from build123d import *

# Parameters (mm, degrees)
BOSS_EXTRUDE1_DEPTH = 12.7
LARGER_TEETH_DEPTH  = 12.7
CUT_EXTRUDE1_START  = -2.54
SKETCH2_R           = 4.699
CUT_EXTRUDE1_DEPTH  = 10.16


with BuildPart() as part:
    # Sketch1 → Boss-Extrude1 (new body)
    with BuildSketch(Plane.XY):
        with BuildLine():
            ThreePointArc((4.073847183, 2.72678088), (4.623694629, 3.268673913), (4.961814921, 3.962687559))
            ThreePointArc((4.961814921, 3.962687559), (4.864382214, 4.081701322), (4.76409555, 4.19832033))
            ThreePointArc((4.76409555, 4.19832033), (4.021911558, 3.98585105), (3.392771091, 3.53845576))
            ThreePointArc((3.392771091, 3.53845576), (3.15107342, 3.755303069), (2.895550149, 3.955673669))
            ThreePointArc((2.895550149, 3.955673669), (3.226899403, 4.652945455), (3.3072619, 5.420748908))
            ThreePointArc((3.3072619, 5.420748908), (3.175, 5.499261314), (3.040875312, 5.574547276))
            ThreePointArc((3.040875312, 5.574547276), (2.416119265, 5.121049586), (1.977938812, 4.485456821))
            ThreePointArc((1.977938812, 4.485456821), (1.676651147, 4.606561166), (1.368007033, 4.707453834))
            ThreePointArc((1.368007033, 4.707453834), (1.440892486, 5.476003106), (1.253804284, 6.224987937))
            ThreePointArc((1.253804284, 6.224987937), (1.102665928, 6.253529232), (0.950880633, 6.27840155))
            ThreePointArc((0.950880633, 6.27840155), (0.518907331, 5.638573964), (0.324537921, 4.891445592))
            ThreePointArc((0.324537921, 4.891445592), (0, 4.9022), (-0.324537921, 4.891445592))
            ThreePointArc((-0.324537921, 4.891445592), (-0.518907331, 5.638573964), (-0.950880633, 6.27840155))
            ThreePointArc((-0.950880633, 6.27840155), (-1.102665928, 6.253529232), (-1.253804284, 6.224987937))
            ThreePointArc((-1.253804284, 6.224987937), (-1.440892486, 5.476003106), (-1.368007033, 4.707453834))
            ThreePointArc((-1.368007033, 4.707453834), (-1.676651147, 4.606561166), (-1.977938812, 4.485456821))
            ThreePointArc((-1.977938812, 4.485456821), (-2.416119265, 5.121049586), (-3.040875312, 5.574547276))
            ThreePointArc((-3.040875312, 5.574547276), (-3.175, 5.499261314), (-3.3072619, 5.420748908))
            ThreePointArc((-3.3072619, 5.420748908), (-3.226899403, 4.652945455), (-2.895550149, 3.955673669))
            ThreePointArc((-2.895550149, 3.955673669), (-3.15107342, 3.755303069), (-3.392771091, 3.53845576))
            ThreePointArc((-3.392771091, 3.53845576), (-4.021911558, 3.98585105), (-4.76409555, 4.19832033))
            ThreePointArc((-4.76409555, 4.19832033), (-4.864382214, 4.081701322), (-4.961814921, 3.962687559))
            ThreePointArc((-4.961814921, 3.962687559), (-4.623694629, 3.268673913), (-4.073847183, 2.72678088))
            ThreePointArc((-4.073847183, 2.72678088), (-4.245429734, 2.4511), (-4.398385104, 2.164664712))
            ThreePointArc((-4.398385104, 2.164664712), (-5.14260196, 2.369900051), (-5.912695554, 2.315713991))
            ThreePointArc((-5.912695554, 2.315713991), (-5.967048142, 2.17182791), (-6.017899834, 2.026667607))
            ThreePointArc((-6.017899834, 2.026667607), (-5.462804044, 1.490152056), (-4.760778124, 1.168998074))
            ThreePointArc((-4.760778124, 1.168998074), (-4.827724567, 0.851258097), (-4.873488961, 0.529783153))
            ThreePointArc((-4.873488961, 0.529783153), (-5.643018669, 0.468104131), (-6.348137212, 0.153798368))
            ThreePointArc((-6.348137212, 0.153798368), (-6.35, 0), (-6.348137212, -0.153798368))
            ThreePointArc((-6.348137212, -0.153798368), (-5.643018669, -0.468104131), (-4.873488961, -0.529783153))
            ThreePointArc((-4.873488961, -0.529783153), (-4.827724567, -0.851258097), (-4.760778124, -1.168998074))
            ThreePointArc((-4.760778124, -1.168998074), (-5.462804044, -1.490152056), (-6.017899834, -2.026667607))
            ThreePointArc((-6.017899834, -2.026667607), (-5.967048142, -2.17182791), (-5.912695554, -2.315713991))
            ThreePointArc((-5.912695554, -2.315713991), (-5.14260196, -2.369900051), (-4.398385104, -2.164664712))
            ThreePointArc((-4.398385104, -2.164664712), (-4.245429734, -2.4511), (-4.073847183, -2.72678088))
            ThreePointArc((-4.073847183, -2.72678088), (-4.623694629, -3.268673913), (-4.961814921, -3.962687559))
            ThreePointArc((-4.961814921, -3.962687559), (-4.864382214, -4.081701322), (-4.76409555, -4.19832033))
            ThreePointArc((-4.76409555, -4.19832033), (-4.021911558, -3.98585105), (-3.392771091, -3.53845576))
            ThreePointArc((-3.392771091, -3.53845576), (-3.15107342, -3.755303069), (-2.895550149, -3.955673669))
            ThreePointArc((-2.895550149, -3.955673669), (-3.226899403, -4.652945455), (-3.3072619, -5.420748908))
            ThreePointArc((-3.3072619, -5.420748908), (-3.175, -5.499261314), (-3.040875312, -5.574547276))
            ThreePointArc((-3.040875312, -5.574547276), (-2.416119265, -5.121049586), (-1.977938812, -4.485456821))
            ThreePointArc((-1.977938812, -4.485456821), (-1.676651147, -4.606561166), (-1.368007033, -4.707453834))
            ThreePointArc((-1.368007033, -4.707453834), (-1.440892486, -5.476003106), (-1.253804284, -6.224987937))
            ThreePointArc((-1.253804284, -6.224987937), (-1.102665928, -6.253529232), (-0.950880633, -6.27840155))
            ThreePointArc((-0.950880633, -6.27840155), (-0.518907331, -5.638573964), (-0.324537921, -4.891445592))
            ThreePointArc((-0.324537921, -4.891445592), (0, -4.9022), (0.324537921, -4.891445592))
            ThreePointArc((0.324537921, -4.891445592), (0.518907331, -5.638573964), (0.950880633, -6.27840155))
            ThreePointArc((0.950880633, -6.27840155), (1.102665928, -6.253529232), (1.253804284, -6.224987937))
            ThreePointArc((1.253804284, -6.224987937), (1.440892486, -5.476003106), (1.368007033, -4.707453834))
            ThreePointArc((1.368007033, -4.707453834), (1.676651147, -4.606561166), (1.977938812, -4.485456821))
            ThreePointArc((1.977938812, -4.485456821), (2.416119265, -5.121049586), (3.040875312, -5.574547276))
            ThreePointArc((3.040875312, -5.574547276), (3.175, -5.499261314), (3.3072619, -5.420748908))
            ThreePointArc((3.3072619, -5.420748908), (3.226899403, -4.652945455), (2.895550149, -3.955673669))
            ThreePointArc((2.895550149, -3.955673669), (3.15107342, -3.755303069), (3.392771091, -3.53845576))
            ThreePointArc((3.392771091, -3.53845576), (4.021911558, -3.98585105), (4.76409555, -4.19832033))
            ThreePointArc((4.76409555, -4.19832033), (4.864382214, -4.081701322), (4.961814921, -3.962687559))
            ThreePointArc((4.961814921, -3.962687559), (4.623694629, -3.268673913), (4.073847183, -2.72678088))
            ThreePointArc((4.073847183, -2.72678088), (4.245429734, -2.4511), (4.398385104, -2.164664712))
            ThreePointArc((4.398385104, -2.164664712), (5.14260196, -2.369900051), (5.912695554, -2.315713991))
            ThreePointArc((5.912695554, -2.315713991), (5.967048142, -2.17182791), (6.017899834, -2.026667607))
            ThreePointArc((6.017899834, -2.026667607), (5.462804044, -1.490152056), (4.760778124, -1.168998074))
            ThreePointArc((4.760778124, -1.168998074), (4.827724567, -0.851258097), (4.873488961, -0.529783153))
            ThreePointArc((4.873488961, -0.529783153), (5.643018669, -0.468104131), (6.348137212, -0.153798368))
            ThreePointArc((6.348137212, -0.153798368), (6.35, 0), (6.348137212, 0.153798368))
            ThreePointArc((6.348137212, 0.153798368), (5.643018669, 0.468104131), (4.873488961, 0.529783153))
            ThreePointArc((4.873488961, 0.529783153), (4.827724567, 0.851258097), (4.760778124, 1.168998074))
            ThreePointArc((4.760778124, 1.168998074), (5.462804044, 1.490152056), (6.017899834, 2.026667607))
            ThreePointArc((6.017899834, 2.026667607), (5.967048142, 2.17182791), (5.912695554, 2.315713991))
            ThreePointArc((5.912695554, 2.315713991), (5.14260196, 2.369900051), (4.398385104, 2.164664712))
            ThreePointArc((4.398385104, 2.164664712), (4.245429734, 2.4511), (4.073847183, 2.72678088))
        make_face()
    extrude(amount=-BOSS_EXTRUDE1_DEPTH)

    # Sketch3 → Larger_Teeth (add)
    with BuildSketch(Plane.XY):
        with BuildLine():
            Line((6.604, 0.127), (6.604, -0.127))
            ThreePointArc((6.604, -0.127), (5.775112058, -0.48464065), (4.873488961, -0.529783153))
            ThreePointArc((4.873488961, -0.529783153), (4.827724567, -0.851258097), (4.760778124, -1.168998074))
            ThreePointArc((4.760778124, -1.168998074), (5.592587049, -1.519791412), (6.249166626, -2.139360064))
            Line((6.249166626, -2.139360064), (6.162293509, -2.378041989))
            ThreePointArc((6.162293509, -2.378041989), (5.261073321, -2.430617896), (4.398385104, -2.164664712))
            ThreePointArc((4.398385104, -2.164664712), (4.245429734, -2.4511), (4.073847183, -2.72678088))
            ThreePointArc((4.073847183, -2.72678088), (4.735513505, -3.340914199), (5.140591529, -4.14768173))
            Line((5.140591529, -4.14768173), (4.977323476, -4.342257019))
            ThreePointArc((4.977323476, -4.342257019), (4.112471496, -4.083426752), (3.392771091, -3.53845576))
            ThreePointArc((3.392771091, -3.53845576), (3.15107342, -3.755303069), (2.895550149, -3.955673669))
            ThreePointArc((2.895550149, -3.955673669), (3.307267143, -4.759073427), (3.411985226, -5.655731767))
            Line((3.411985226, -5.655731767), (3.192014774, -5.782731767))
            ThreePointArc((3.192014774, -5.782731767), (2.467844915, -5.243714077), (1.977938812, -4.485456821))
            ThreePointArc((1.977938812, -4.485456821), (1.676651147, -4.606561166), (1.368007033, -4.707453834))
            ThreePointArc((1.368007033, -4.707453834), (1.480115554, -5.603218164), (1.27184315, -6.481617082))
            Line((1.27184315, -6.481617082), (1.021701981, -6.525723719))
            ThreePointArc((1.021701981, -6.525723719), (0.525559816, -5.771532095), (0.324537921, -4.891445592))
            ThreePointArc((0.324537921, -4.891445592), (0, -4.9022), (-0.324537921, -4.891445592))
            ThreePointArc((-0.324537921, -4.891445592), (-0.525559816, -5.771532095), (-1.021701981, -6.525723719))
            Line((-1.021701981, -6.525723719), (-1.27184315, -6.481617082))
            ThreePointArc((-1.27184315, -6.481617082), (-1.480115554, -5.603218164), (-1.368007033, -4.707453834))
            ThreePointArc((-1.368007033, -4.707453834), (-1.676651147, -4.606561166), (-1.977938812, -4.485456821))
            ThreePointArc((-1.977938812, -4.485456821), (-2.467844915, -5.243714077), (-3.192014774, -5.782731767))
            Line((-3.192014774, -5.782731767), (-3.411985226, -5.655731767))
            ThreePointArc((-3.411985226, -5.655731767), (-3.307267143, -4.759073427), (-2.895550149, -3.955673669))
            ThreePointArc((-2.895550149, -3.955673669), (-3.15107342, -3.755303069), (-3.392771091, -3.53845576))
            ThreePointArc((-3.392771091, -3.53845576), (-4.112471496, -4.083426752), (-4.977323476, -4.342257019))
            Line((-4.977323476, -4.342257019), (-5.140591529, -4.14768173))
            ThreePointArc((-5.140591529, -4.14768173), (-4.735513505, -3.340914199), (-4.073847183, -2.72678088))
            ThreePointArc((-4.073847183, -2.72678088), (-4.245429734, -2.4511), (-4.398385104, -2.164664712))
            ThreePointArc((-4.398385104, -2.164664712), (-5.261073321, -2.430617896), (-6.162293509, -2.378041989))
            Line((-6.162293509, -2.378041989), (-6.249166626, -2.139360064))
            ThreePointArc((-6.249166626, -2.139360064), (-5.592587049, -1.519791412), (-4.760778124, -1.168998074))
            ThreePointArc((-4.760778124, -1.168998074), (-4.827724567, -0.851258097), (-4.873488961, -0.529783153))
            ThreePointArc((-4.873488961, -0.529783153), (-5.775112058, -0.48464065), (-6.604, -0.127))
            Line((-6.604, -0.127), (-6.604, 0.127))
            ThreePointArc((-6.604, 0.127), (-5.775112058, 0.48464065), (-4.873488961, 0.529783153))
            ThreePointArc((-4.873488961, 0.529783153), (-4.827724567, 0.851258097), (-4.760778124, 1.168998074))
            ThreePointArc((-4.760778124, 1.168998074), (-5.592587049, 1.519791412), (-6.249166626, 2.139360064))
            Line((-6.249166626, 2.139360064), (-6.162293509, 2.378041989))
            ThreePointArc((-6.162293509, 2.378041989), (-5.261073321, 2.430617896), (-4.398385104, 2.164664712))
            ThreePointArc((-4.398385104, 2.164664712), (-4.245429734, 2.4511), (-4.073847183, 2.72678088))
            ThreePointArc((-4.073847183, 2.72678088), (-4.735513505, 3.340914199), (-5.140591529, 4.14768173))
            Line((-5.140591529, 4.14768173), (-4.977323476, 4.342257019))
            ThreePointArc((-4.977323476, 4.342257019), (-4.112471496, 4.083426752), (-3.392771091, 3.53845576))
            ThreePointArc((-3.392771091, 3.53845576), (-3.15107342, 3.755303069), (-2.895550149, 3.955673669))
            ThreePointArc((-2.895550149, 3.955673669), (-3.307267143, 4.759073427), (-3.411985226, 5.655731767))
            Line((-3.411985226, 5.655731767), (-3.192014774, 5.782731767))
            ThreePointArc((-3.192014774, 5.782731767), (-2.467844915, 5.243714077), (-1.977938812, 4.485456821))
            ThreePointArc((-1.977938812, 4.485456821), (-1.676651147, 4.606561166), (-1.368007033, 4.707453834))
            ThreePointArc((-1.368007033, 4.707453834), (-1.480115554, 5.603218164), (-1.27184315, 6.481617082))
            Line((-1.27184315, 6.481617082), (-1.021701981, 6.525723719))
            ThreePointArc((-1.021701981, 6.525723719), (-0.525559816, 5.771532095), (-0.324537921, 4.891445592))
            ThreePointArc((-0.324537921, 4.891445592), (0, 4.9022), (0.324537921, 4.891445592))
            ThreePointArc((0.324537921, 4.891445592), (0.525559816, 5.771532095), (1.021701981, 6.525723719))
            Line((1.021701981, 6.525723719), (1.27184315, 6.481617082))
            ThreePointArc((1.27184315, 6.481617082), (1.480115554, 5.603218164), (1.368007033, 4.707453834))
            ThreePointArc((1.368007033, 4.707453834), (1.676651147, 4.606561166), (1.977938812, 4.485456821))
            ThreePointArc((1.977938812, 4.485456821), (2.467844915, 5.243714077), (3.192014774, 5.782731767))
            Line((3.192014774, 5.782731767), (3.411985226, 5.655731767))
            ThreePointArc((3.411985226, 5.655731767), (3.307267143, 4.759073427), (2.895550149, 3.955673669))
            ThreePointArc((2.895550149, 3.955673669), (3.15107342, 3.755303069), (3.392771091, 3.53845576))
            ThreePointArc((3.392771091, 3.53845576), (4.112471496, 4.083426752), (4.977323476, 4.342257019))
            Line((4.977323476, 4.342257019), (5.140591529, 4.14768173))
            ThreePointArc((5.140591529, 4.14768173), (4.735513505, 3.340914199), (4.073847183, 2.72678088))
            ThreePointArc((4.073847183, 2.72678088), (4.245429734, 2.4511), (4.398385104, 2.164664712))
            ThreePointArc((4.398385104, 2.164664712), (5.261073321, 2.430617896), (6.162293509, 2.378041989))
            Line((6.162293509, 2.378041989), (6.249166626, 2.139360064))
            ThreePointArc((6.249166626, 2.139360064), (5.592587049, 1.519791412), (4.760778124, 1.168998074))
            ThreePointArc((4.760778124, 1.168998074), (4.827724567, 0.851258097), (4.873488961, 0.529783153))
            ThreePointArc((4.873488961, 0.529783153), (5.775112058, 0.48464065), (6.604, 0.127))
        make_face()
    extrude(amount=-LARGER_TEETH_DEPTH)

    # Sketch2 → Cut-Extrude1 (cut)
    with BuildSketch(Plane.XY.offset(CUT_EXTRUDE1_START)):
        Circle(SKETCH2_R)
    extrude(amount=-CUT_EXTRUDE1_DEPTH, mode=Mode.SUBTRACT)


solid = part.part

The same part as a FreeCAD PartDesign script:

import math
import FreeCAD as App
import Part
import Sketcher

V = App.Vector
Q = App.Units.Quantity

doc = App.newDocument("Part")
body = doc.addObject("PartDesign::Body", "Body")

# Sketch on XY plane
sketch1 = body.newObject("Sketcher::SketchObject", "Sketch")
sketch1.AttachmentSupport = (doc.getObject("XY_Plane"), [""])
sketch1.MapMode = "FlatFace"
sketch1.addGeometry([
    Part.ArcOfCircle(Part.Circle(V(2.77, 4.6, 0), V(0, 0, 1), 2.29), math.radians(-55), math.radians(-16)),  # 0
    Part.ArcOfCircle(Part.Circle(V(0, 0, 0), V(0, 0, 1), 6.35), math.radians(38.61), math.radians(41.39)),  # 1
    Part.ArcOfCircle(Part.Circle(V(5.01, 1.93, 0), V(0, 0, 1), 2.29), math.radians(96), math.radians(135)),  # 2
    Part.ArcOfCircle(Part.Circle(V(0, 0, 0), V(0, 0, 1), 4.9), math.radians(46.2), math.radians(53.8)),  # 3
    Part.ArcOfCircle(Part.Circle(V(1.03, 5.27, 0), V(0, 0, 1), 2.29), math.radians(-35), math.radians(4)),  # 4
    Part.ArcOfCircle(Part.Circle(V(0, 0, 0), V(0, 0, 1), 6.35), math.radians(58.61), math.radians(61.39)),  # 5
    Part.ArcOfCircle(Part.Circle(V(4.05, 3.52, 0), V(0, 0, 1), 2.29), math.radians(116), math.radians(155)),  # 6
    Part.ArcOfCircle(Part.Circle(V(0, 0, 0), V(0, 0, 1), 4.9), math.radians(66.2), math.radians(73.8)),  # 7
    Part.ArcOfCircle(Part.Circle(V(-0.84, 5.3, 0), V(0, 0, 1), 2.29), math.radians(-15), math.radians(24)),  # 8
    Part.ArcOfCircle(Part.Circle(V(0, 0, 0), V(0, 0, 1), 6.35), math.radians(78.61), math.radians(81.39)),  # 9
    Part.ArcOfCircle(Part.Circle(V(2.6, 4.7, 0), V(0, 0, 1), 2.29), math.radians(136), math.radians(175)),  # 10
    Part.ArcOfCircle(Part.Circle(V(0, 0, 0), V(0, 0, 1), 4.9), math.radians(86.2), math.radians(93.8)),  # 11
    Part.ArcOfCircle(Part.Circle(V(-2.6, 4.7, 0), V(0, 0, 1), 2.29), math.radians(5), math.radians(44)),  # 12
    Part.ArcOfCircle(Part.Circle(V(0, 0, 0), V(0, 0, 1), 6.35), math.radians(98.61), math.radians(101.39)),  # 13
    Part.ArcOfCircle(Part.Circle(V(0.84, 5.3, 0), V(0, 0, 1), 2.29), math.radians(156), math.radians(195)),  # 14
    Part.ArcOfCircle(Part.Circle(V(0, 0, 0), V(0, 0, 1), 4.9), math.radians(106.2), math.radians(113.8)),  # 15
    Part.ArcOfCircle(Part.Circle(V(-4.05, 3.52, 0), V(0, 0, 1), 2.29), math.radians(25), math.radians(64)),  # 16
    Part.ArcOfCircle(Part.Circle(V(0, 0, 0), V(0, 0, 1), 6.35), math.radians(118.61), math.radians(121.39)),  # 17
    Part.ArcOfCircle(Part.Circle(V(-1.03, 5.27, 0), V(0, 0, 1), 2.29), math.radians(176), math.radians(215)),  # 18
    Part.ArcOfCircle(Part.Circle(V(0, 0, 0), V(0, 0, 1), 4.9), math.radians(126.2), math.radians(133.8)),  # 19
    Part.ArcOfCircle(Part.Circle(V(-5.01, 1.93, 0), V(0, 0, 1), 2.29), math.radians(45), math.radians(84)),  # 20
    Part.ArcOfCircle(Part.Circle(V(0, 0, 0), V(0, 0, 1), 6.35), math.radians(138.61), math.radians(141.39)),  # 21
    Part.ArcOfCircle(Part.Circle(V(-2.77, 4.6, 0), V(0, 0, 1), 2.29), math.radians(-164), math.radians(-125)),  # 22
    Part.ArcOfCircle(Part.Circle(V(0, 0, 0), V(0, 0, 1), 4.9), math.radians(146.2), math.radians(153.8)),  # 23
    Part.ArcOfCircle(Part.Circle(V(-5.37, 0.1, 0), V(0, 0, 1), 2.29), math.radians(65), math.radians(104)),  # 24
    Part.ArcOfCircle(Part.Circle(V(0, 0, 0), V(0, 0, 1), 6.35), math.radians(158.61), math.radians(161.39)),  # 25
    Part.ArcOfCircle(Part.Circle(V(-4.17, 3.38, 0), V(0, 0, 1), 2.29), math.radians(-144), math.radians(-105)),  # 26
    Part.ArcOfCircle(Part.Circle(V(0, 0, 0), V(0, 0, 1), 4.9), math.radians(166.2), math.radians(173.8)),  # 27
    Part.ArcOfCircle(Part.Circle(V(-5.08, -1.75, 0), V(0, 0, 1), 2.29), math.radians(85), math.radians(124)),  # 28
    Part.ArcOfCircle(Part.Circle(V(0, 0, 0), V(0, 0, 1), 6.35), math.radians(178.61), math.radians(181.39)),  # 29
    Part.ArcOfCircle(Part.Circle(V(-5.08, 1.75, 0), V(0, 0, 1), 2.29), math.radians(-124), math.radians(-85)),  # 30
    Part.ArcOfCircle(Part.Circle(V(0, 0, 0), V(0, 0, 1), 4.9), math.radians(-173.8), math.radians(-166.2)),  # 31
    Part.ArcOfCircle(Part.Circle(V(-4.17, -3.38, 0), V(0, 0, 1), 2.29), math.radians(105), math.radians(144)),  # 32
    Part.ArcOfCircle(Part.Circle(V(0, 0, 0), V(0, 0, 1), 6.35), math.radians(-161.39), math.radians(-158.61)),  # 33
    Part.ArcOfCircle(Part.Circle(V(-5.37, -0.1, 0), V(0, 0, 1), 2.29), math.radians(-104), math.radians(-65)),  # 34
    Part.ArcOfCircle(Part.Circle(V(0, 0, 0), V(0, 0, 1), 4.9), math.radians(-153.8), math.radians(-146.2)),  # 35
    Part.ArcOfCircle(Part.Circle(V(-2.77, -4.6, 0), V(0, 0, 1), 2.29), math.radians(125), math.radians(164)),  # 36
    Part.ArcOfCircle(Part.Circle(V(0, 0, 0), V(0, 0, 1), 6.35), math.radians(-141.39), math.radians(-138.61)),  # 37
    Part.ArcOfCircle(Part.Circle(V(-5.01, -1.93, 0), V(0, 0, 1), 2.29), math.radians(-84), math.radians(-45)),  # 38
    Part.ArcOfCircle(Part.Circle(V(0, 0, 0), V(0, 0, 1), 4.9), math.radians(-133.8), math.radians(-126.2)),  # 39
    Part.ArcOfCircle(Part.Circle(V(-1.03, -5.27, 0), V(0, 0, 1), 2.29), math.radians(145), math.radians(184)),  # 40
    Part.ArcOfCircle(Part.Circle(V(0, 0, 0), V(0, 0, 1), 6.35), math.radians(-121.39), math.radians(-118.61)),  # 41
    Part.ArcOfCircle(Part.Circle(V(-4.05, -3.52, 0), V(0, 0, 1), 2.29), math.radians(-64), math.radians(-25)),  # 42
    Part.ArcOfCircle(Part.Circle(V(0, 0, 0), V(0, 0, 1), 4.9), math.radians(-113.8), math.radians(-106.2)),  # 43
    Part.ArcOfCircle(Part.Circle(V(0.84, -5.3, 0), V(0, 0, 1), 2.29), math.radians(165), math.radians(204)),  # 44
    Part.ArcOfCircle(Part.Circle(V(0, 0, 0), V(0, 0, 1), 6.35), math.radians(-101.39), math.radians(-98.61)),  # 45
    Part.ArcOfCircle(Part.Circle(V(-2.6, -4.7, 0), V(0, 0, 1), 2.29), math.radians(-44), math.radians(-5)),  # 46
    Part.ArcOfCircle(Part.Circle(V(0, 0, 0), V(0, 0, 1), 4.9), math.radians(-93.8), math.radians(-86.2)),  # 47
    Part.ArcOfCircle(Part.Circle(V(2.6, -4.7, 0), V(0, 0, 1), 2.29), math.radians(-175), math.radians(-136)),  # 48
    Part.ArcOfCircle(Part.Circle(V(0, 0, 0), V(0, 0, 1), 6.35), math.radians(-81.39), math.radians(-78.61)),  # 49
    Part.ArcOfCircle(Part.Circle(V(-0.84, -5.3, 0), V(0, 0, 1), 2.29), math.radians(-24), math.radians(15)),  # 50
    Part.ArcOfCircle(Part.Circle(V(0, 0, 0), V(0, 0, 1), 4.9), math.radians(-73.8), math.radians(-66.2)),  # 51
    Part.ArcOfCircle(Part.Circle(V(4.05, -3.52, 0), V(0, 0, 1), 2.29), math.radians(-155), math.radians(-116)),  # 52
    Part.ArcOfCircle(Part.Circle(V(0, 0, 0), V(0, 0, 1), 6.35), math.radians(-61.39), math.radians(-58.61)),  # 53
    Part.ArcOfCircle(Part.Circle(V(1.03, -5.27, 0), V(0, 0, 1), 2.29), math.radians(-4), math.radians(35)),  # 54
    Part.ArcOfCircle(Part.Circle(V(0, 0, 0), V(0, 0, 1), 4.9), math.radians(-53.8), math.radians(-46.2)),  # 55
    Part.ArcOfCircle(Part.Circle(V(5.01, -1.93, 0), V(0, 0, 1), 2.29), math.radians(-135), math.radians(-96)),  # 56
    Part.ArcOfCircle(Part.Circle(V(0, 0, 0), V(0, 0, 1), 6.35), math.radians(-41.39), math.radians(-38.61)),  # 57
    Part.ArcOfCircle(Part.Circle(V(2.77, -4.6, 0), V(0, 0, 1), 2.29), math.radians(16), math.radians(55)),  # 58
    Part.ArcOfCircle(Part.Circle(V(0, 0, 0), V(0, 0, 1), 4.9), math.radians(-33.8), math.radians(-26.2)),  # 59
    Part.ArcOfCircle(Part.Circle(V(5.37, -0.1, 0), V(0, 0, 1), 2.29), math.radians(-115), math.radians(-76)),  # 60
    Part.ArcOfCircle(Part.Circle(V(0, 0, 0), V(0, 0, 1), 6.35), math.radians(-21.39), math.radians(-18.61)),  # 61
    Part.ArcOfCircle(Part.Circle(V(4.17, -3.38, 0), V(0, 0, 1), 2.29), math.radians(36), math.radians(75)),  # 62
    Part.ArcOfCircle(Part.Circle(V(0, 0, 0), V(0, 0, 1), 4.9), math.radians(-13.8), math.radians(-6.2)),  # 63
    Part.ArcOfCircle(Part.Circle(V(5.08, 1.75, 0), V(0, 0, 1), 2.29), math.radians(-95), math.radians(-56)),  # 64
    Part.ArcOfCircle(Part.Circle(V(0, 0, 0), V(0, 0, 1), 6.35), math.radians(-1.39), math.radians(1.39)),  # 65
    Part.ArcOfCircle(Part.Circle(V(5.08, -1.75, 0), V(0, 0, 1), 2.29), math.radians(56), math.radians(95)),  # 66
    Part.ArcOfCircle(Part.Circle(V(0, 0, 0), V(0, 0, 1), 4.9), math.radians(6.2), math.radians(13.8)),  # 67
    Part.ArcOfCircle(Part.Circle(V(4.17, 3.38, 0), V(0, 0, 1), 2.29), math.radians(-75), math.radians(-36)),  # 68
    Part.ArcOfCircle(Part.Circle(V(0, 0, 0), V(0, 0, 1), 6.35), math.radians(18.61), math.radians(21.39)),  # 69
    Part.ArcOfCircle(Part.Circle(V(5.37, 0.1, 0), V(0, 0, 1), 2.29), math.radians(76), math.radians(115)),  # 70
    Part.ArcOfCircle(Part.Circle(V(0, 0, 0), V(0, 0, 1), 4.9), math.radians(26.2), math.radians(33.8)),  # 71
], False)
sketch1.addConstraint([
    Sketcher.Constraint("Coincident", 0, 2, 1, 1),
    Sketcher.Constraint("Coincident", 1, 2, 2, 1),
    Sketcher.Constraint("Coincident", 2, 2, 3, 1),
    Sketcher.Constraint("Coincident", 3, 2, 4, 1),
    Sketcher.Constraint("Coincident", 4, 2, 5, 1),
    Sketcher.Constraint("Coincident", 5, 2, 6, 1),
    Sketcher.Constraint("Coincident", 6, 2, 7, 1),
    Sketcher.Constraint("Coincident", 7, 2, 8, 1),
    Sketcher.Constraint("Coincident", 8, 2, 9, 1),
    Sketcher.Constraint("Coincident", 9, 2, 10, 1),
    Sketcher.Constraint("Coincident", 10, 2, 11, 1),
    Sketcher.Constraint("Coincident", 11, 2, 12, 1),
    Sketcher.Constraint("Coincident", 12, 2, 13, 1),
    Sketcher.Constraint("Coincident", 13, 2, 14, 1),
    Sketcher.Constraint("Coincident", 14, 2, 15, 1),
    Sketcher.Constraint("Coincident", 15, 2, 16, 1),
    Sketcher.Constraint("Coincident", 16, 2, 17, 1),
    Sketcher.Constraint("Coincident", 17, 2, 18, 1),
    Sketcher.Constraint("Coincident", 18, 2, 19, 1),
    Sketcher.Constraint("Coincident", 19, 2, 20, 1),
    Sketcher.Constraint("Coincident", 20, 2, 21, 1),
    Sketcher.Constraint("Coincident", 21, 2, 22, 1),
    Sketcher.Constraint("Coincident", 22, 2, 23, 1),
    Sketcher.Constraint("Coincident", 23, 2, 24, 1),
    Sketcher.Constraint("Coincident", 24, 2, 25, 1),
    Sketcher.Constraint("Coincident", 25, 2, 26, 1),
    Sketcher.Constraint("Coincident", 26, 2, 27, 1),
    Sketcher.Constraint("Coincident", 27, 2, 28, 1),
    Sketcher.Constraint("Coincident", 28, 2, 29, 1),
    Sketcher.Constraint("Coincident", 29, 2, 30, 1),
    Sketcher.Constraint("Coincident", 30, 2, 31, 1),
    Sketcher.Constraint("Coincident", 31, 2, 32, 1),
    Sketcher.Constraint("Coincident", 32, 2, 33, 1),
    Sketcher.Constraint("Coincident", 33, 2, 34, 1),
    Sketcher.Constraint("Coincident", 34, 2, 35, 1),
    Sketcher.Constraint("Coincident", 35, 2, 36, 1),
    Sketcher.Constraint("Coincident", 36, 2, 37, 1),
    Sketcher.Constraint("Coincident", 37, 2, 38, 1),
    Sketcher.Constraint("Coincident", 38, 2, 39, 1),
    Sketcher.Constraint("Coincident", 39, 2, 40, 1),
    Sketcher.Constraint("Coincident", 40, 2, 41, 1),
    Sketcher.Constraint("Coincident", 41, 2, 42, 1),
    Sketcher.Constraint("Coincident", 42, 2, 43, 1),
    Sketcher.Constraint("Coincident", 43, 2, 44, 1),
    Sketcher.Constraint("Coincident", 44, 2, 45, 1),
    Sketcher.Constraint("Coincident", 45, 2, 46, 1),
    Sketcher.Constraint("Coincident", 46, 2, 47, 1),
    Sketcher.Constraint("Coincident", 47, 2, 48, 1),
    Sketcher.Constraint("Coincident", 48, 2, 49, 1),
    Sketcher.Constraint("Coincident", 49, 2, 50, 1),
    Sketcher.Constraint("Coincident", 50, 2, 51, 1),
    Sketcher.Constraint("Coincident", 51, 2, 52, 1),
    Sketcher.Constraint("Coincident", 52, 2, 53, 1),
    Sketcher.Constraint("Coincident", 53, 2, 54, 1),
    Sketcher.Constraint("Coincident", 54, 2, 55, 1),
    Sketcher.Constraint("Coincident", 55, 2, 56, 1),
    Sketcher.Constraint("Coincident", 56, 2, 57, 1),
    Sketcher.Constraint("Coincident", 57, 2, 58, 1),
    Sketcher.Constraint("Coincident", 58, 2, 59, 1),
    Sketcher.Constraint("Coincident", 59, 2, 60, 1),
    Sketcher.Constraint("Coincident", 60, 2, 61, 1),
    Sketcher.Constraint("Coincident", 61, 2, 62, 1),
    Sketcher.Constraint("Coincident", 62, 2, 63, 1),
    Sketcher.Constraint("Coincident", 63, 2, 64, 1),
    Sketcher.Constraint("Coincident", 64, 2, 65, 1),
    Sketcher.Constraint("Coincident", 65, 2, 66, 1),
    Sketcher.Constraint("Coincident", 66, 2, 67, 1),
    Sketcher.Constraint("Coincident", 67, 2, 68, 1),
    Sketcher.Constraint("Coincident", 68, 2, 69, 1),
    Sketcher.Constraint("Coincident", 69, 2, 70, 1),
    Sketcher.Constraint("Coincident", 70, 2, 71, 1),
    Sketcher.Constraint("Coincident", 71, 2, 0, 1),
    Sketcher.Constraint("Coincident", 1, 3, -1, 1),
    Sketcher.Constraint("Coincident", 3, 3, -1, 1),
    Sketcher.Constraint("Coincident", 5, 3, -1, 1),
    Sketcher.Constraint("Coincident", 7, 3, -1, 1),
    Sketcher.Constraint("Coincident", 9, 3, -1, 1),
    Sketcher.Constraint("Coincident", 11, 3, -1, 1),
    Sketcher.Constraint("Coincident", 13, 3, -1, 1),
    Sketcher.Constraint("Coincident", 15, 3, -1, 1),
    Sketcher.Constraint("Coincident", 17, 3, -1, 1),
    Sketcher.Constraint("Coincident", 19, 3, -1, 1),
    Sketcher.Constraint("Coincident", 21, 3, -1, 1),
    Sketcher.Constraint("Coincident", 23, 3, -1, 1),
    Sketcher.Constraint("Coincident", 25, 3, -1, 1),
    Sketcher.Constraint("Coincident", 27, 3, -1, 1),
    Sketcher.Constraint("Coincident", 29, 3, -1, 1),
    Sketcher.Constraint("Coincident", 31, 3, -1, 1),
    Sketcher.Constraint("Coincident", 33, 3, -1, 1),
    Sketcher.Constraint("Coincident", 35, 3, -1, 1),
    Sketcher.Constraint("Coincident", 37, 3, -1, 1),
    Sketcher.Constraint("Coincident", 39, 3, -1, 1),
    Sketcher.Constraint("Coincident", 41, 3, -1, 1),
    Sketcher.Constraint("Coincident", 43, 3, -1, 1),
    Sketcher.Constraint("Coincident", 45, 3, -1, 1),
    Sketcher.Constraint("Coincident", 47, 3, -1, 1),
    Sketcher.Constraint("Coincident", 49, 3, -1, 1),
    Sketcher.Constraint("Coincident", 51, 3, -1, 1),
    Sketcher.Constraint("Coincident", 53, 3, -1, 1),
    Sketcher.Constraint("Coincident", 55, 3, -1, 1),
    Sketcher.Constraint("Coincident", 57, 3, -1, 1),
    Sketcher.Constraint("Coincident", 59, 3, -1, 1),
    Sketcher.Constraint("Coincident", 61, 3, -1, 1),
    Sketcher.Constraint("Coincident", 63, 3, -1, 1),
    Sketcher.Constraint("Coincident", 65, 3, -1, 1),
    Sketcher.Constraint("Coincident", 67, 3, -1, 1),
    Sketcher.Constraint("Coincident", 69, 3, -1, 1),
    Sketcher.Constraint("Coincident", 71, 3, -1, 1),
    Sketcher.Constraint("Equal", 0, 2),
    Sketcher.Constraint("Equal", 2, 4),
    Sketcher.Constraint("Equal", 1, 5),
    Sketcher.Constraint("Equal", 4, 6),
    Sketcher.Constraint("Equal", 3, 7),
    Sketcher.Constraint("Equal", 6, 8),
    Sketcher.Constraint("Equal", 5, 9),
    Sketcher.Constraint("Equal", 8, 10),
    Sketcher.Constraint("Equal", 7, 11),
    Sketcher.Constraint("Equal", 10, 12),
    Sketcher.Constraint("Equal", 9, 13),
    Sketcher.Constraint("Equal", 12, 14),
    Sketcher.Constraint("Equal", 11, 15),
    Sketcher.Constraint("Equal", 14, 16),
    Sketcher.Constraint("Equal", 13, 17),
    Sketcher.Constraint("Equal", 16, 18),
    Sketcher.Constraint("Equal", 15, 19),
    Sketcher.Constraint("Equal", 18, 20),
    Sketcher.Constraint("Equal", 17, 21),
    Sketcher.Constraint("Equal", 20, 22),
    Sketcher.Constraint("Equal", 19, 23),
    Sketcher.Constraint("Equal", 22, 24),
    Sketcher.Constraint("Equal", 21, 25),
    Sketcher.Constraint("Equal", 24, 26),
    Sketcher.Constraint("Equal", 23, 27),
    Sketcher.Constraint("Equal", 26, 28),
    Sketcher.Constraint("Equal", 25, 29),
    Sketcher.Constraint("Equal", 28, 30),
    Sketcher.Constraint("Equal", 27, 31),
    Sketcher.Constraint("Equal", 30, 32),
    Sketcher.Constraint("Equal", 29, 33),
    Sketcher.Constraint("Equal", 32, 34),
    Sketcher.Constraint("Equal", 31, 35),
    Sketcher.Constraint("Equal", 34, 36),
    Sketcher.Constraint("Equal", 33, 37),
    Sketcher.Constraint("Equal", 36, 38),
    Sketcher.Constraint("Equal", 35, 39),
    Sketcher.Constraint("Equal", 38, 40),
    Sketcher.Constraint("Equal", 37, 41),
    Sketcher.Constraint("Equal", 40, 42),
    Sketcher.Constraint("Equal", 39, 43),
    Sketcher.Constraint("Equal", 42, 44),
    Sketcher.Constraint("Equal", 41, 45),
    Sketcher.Constraint("Equal", 44, 46),
    Sketcher.Constraint("Equal", 43, 47),
    Sketcher.Constraint("Equal", 46, 48),
    Sketcher.Constraint("Equal", 45, 49),
    Sketcher.Constraint("Equal", 48, 50),
    Sketcher.Constraint("Equal", 47, 51),
    Sketcher.Constraint("Equal", 50, 52),
    Sketcher.Constraint("Equal", 49, 53),
    Sketcher.Constraint("Equal", 52, 54),
    Sketcher.Constraint("Equal", 51, 55),
    Sketcher.Constraint("Equal", 54, 56),
    Sketcher.Constraint("Equal", 53, 57),
    Sketcher.Constraint("Equal", 56, 58),
    Sketcher.Constraint("Equal", 55, 59),
    Sketcher.Constraint("Equal", 58, 60),
    Sketcher.Constraint("Equal", 57, 61),
    Sketcher.Constraint("Equal", 60, 62),
    Sketcher.Constraint("Equal", 59, 63),
    Sketcher.Constraint("Equal", 62, 64),
    Sketcher.Constraint("Equal", 61, 65),
    Sketcher.Constraint("Equal", 64, 66),
    Sketcher.Constraint("Equal", 63, 67),
    Sketcher.Constraint("Equal", 66, 68),
    Sketcher.Constraint("Equal", 65, 69),
    Sketcher.Constraint("Equal", 68, 70),
    Sketcher.Constraint("Equal", 67, 71),
    Sketcher.Constraint("Symmetric", 0, 3, 36, 3, -1, 1),
    Sketcher.Constraint("Symmetric", 2, 3, 38, 3, -1, 1),
    Sketcher.Constraint("Symmetric", 4, 3, 40, 3, -1, 1),
    Sketcher.Constraint("Symmetric", 6, 3, 42, 3, -1, 1),
    Sketcher.Constraint("Symmetric", 8, 3, 44, 3, -1, 1),
    Sketcher.Constraint("Symmetric", 10, 3, 46, 3, -1, 1),
    Sketcher.Constraint("Symmetric", 12, 3, 48, 3, -1, 1),
    Sketcher.Constraint("Symmetric", 14, 3, 50, 3, -1, 1),
    Sketcher.Constraint("Symmetric", 16, 3, 52, 3, -1, 1),
    Sketcher.Constraint("Symmetric", 18, 3, 54, 3, -1, 1),
    Sketcher.Constraint("Symmetric", 20, 3, 56, 3, -1, 1),
    Sketcher.Constraint("Symmetric", 22, 3, 58, 3, -1, 1),
    Sketcher.Constraint("Symmetric", 24, 3, 60, 3, -1, 1),
    Sketcher.Constraint("Symmetric", 26, 3, 62, 3, -1, 1),
    Sketcher.Constraint("Symmetric", 28, 3, 64, 3, -1, 1),
    Sketcher.Constraint("Symmetric", 30, 3, 66, 3, -1, 1),
    Sketcher.Constraint("Symmetric", 32, 3, 68, 3, -1, 1),
    Sketcher.Constraint("Symmetric", 34, 3, 70, 3, -1, 1),
    Sketcher.Constraint("Symmetric", 10, 3, 12, 3, -2),
    Sketcher.Constraint("Symmetric", 8, 3, 14, 3, -2),
    Sketcher.Constraint("Symmetric", 6, 3, 16, 3, -2),
    Sketcher.Constraint("Symmetric", 4, 3, 18, 3, -2),
    Sketcher.Constraint("Symmetric", 2, 3, 20, 3, -2),
    Sketcher.Constraint("Symmetric", 0, 3, 22, 3, -2),
    Sketcher.Constraint("Symmetric", 34, 3, 60, 3, -2),
    Sketcher.Constraint("Symmetric", 32, 3, 62, 3, -2),
    Sketcher.Constraint("Symmetric", 30, 3, 64, 3, -2),
    Sketcher.Constraint("Radius", 0, Q("0.09 in")),
    Sketcher.Constraint("Radius", 1, Q("0.25 in")),
    Sketcher.Constraint("Radius", 3, Q("0.193 in")),
    Sketcher.Constraint("DistanceX", 24, 3, -1, 1, 5.3695),
    Sketcher.Constraint("DistanceY", -1, 1, 9, 2, 6.278402),
    Sketcher.Constraint("DistanceX", 25, 2, -1, 1, 6.0179),
    Sketcher.Constraint("DistanceY", -1, 1, 26, 2, 1.168998),
    Sketcher.Constraint("DistanceY", -1, 1, 28, 2, 0.153798),
    Sketcher.Constraint("DistanceY", -1, 1, 0, 3, 4.602529),
    Sketcher.Constraint("DistanceX", -1, 1, 6, 3, 4.05209),
    Sketcher.Constraint("DistanceX", 8, 3, -1, 1, 0.838662),
    Sketcher.Constraint("DistanceY", -1, 1, 24, 3, 0.095188),
    Sketcher.Constraint("DistanceY", 28, 3, -1, 1, 1.747029),
    Sketcher.Constraint("DistanceY", -1, 1, 1, 2, 4.19832),
    Sketcher.Constraint("DistanceX", -1, 1, 2, 2, 3.392771),
    Sketcher.Constraint("DistanceX", -1, 1, 3, 2, 2.89555),
    Sketcher.Constraint("DistanceX", -1, 1, 4, 2, 3.307262),
    Sketcher.Constraint("DistanceX", -1, 1, 6, 2, 1.977939),
    Sketcher.Constraint("DistanceY", -1, 1, 22, 2, 2.726781),
    Sketcher.Constraint("DistanceY", -1, 1, 8, 3, 5.304454),
    Sketcher.Constraint("DistanceX", -1, 1, 10, 3, 2.602314),
])
pad1 = body.newObject("PartDesign::Pad", "Pad")
pad1.Profile = sketch1
pad1.Length = Q("0.5 in")
pad1.Reversed = True

# Sketch on XY plane
sketch2 = body.newObject("Sketcher::SketchObject", "Sketch001")
sketch2.AttachmentSupport = (doc.getObject("XY_Plane"), [""])
sketch2.MapMode = "FlatFace"
sketch2.addGeometry([
    Part.LineSegment(V(6.6, -0.13, 0), V(6.6, 0.13, 0)),  # 0
    Part.ArcOfCircle(Part.Circle(V(5.2, -1.99, 0), V(0, 0, 1), 2.54), math.radians(56), math.radians(97)),  # 1
    Part.ArcOfCircle(Part.Circle(V(0, 0, 0), V(0, 0, 1), 4.9), math.radians(6.2), math.radians(13.8)),  # 2
    Part.ArcOfCircle(Part.Circle(V(4.21, 3.65, 0), V(0, 0, 1), 2.54), math.radians(-77), math.radians(-36)),  # 3
    Part.LineSegment(V(6.25, 2.14, 0), V(6.16, 2.38, 0)),  # 4
    Part.ArcOfCircle(Part.Circle(V(5.57, -0.09, 0), V(0, 0, 1), 2.54), math.radians(76), math.radians(117)),  # 5
    Part.ArcOfCircle(Part.Circle(V(0, 0, 0), V(0, 0, 1), 4.9), math.radians(26.2), math.radians(33.8)),  # 6
    Part.ArcOfCircle(Part.Circle(V(2.7, 4.87, 0), V(0, 0, 1), 2.54), math.radians(-57), math.radians(-16)),  # 7
    Part.LineSegment(V(5.14, 4.15, 0), V(4.98, 4.34, 0)),  # 8
    Part.ArcOfCircle(Part.Circle(V(5.26, 1.82, 0), V(0, 0, 1), 2.54), math.radians(96), math.radians(137)),  # 9
    Part.ArcOfCircle(Part.Circle(V(0, 0, 0), V(0, 0, 1), 4.9), math.radians(46.2), math.radians(53.8)),  # 10
    Part.ArcOfCircle(Part.Circle(V(0.88, 5.5, 0), V(0, 0, 1), 2.54), math.radians(-37), math.radians(4)),  # 11
    Part.LineSegment(V(3.41, 5.66, 0), V(3.19, 5.78, 0)),  # 12
    Part.ArcOfCircle(Part.Circle(V(4.32, 3.51, 0), V(0, 0, 1), 2.54), math.radians(116), math.radians(157)),  # 13
    Part.ArcOfCircle(Part.Circle(V(0, 0, 0), V(0, 0, 1), 4.9), math.radians(66.2), math.radians(73.8)),  # 14
    Part.ArcOfCircle(Part.Circle(V(-1.06, 5.47, 0), V(0, 0, 1), 2.54), math.radians(-17), math.radians(24)),  # 15
    Part.LineSegment(V(1.27, 6.48, 0), V(1.02, 6.53, 0)),  # 16
    Part.ArcOfCircle(Part.Circle(V(2.86, 4.77, 0), V(0, 0, 1), 2.54), math.radians(136), math.radians(177)),  # 17
    Part.ArcOfCircle(Part.Circle(V(0, 0, 0), V(0, 0, 1), 4.9), math.radians(86.2), math.radians(93.8)),  # 18
    Part.ArcOfCircle(Part.Circle(V(-2.86, 4.77, 0), V(0, 0, 1), 2.54), math.radians(3), math.radians(44)),  # 19
    Part.LineSegment(V(-1.02, 6.53, 0), V(-1.27, 6.48, 0)),  # 20
    Part.ArcOfCircle(Part.Circle(V(1.06, 5.47, 0), V(0, 0, 1), 2.54), math.radians(156), math.radians(197)),  # 21
    Part.ArcOfCircle(Part.Circle(V(0, 0, 0), V(0, 0, 1), 4.9), math.radians(106.2), math.radians(113.8)),  # 22
    Part.ArcOfCircle(Part.Circle(V(-4.32, 3.51, 0), V(0, 0, 1), 2.54), math.radians(23), math.radians(64)),  # 23
    Part.LineSegment(V(-3.19, 5.78, 0), V(-3.41, 5.66, 0)),  # 24
    Part.ArcOfCircle(Part.Circle(V(-0.88, 5.5, 0), V(0, 0, 1), 2.54), math.radians(176), math.radians(217)),  # 25
    Part.ArcOfCircle(Part.Circle(V(0, 0, 0), V(0, 0, 1), 4.9), math.radians(126.2), math.radians(133.8)),  # 26
    Part.ArcOfCircle(Part.Circle(V(-5.26, 1.82, 0), V(0, 0, 1), 2.54), math.radians(43), math.radians(84)),  # 27
    Part.LineSegment(V(-4.98, 4.34, 0), V(-5.14, 4.15, 0)),  # 28
    Part.ArcOfCircle(Part.Circle(V(-2.7, 4.87, 0), V(0, 0, 1), 2.54), math.radians(-164), math.radians(-123)),  # 29
    Part.ArcOfCircle(Part.Circle(V(0, 0, 0), V(0, 0, 1), 4.9), math.radians(146.2), math.radians(153.8)),  # 30
    Part.ArcOfCircle(Part.Circle(V(-5.57, -0.09, 0), V(0, 0, 1), 2.54), math.radians(63), math.radians(104)),  # 31
    Part.LineSegment(V(-6.16, 2.38, 0), V(-6.25, 2.14, 0)),  # 32
    Part.ArcOfCircle(Part.Circle(V(-4.21, 3.65, 0), V(0, 0, 1), 2.54), math.radians(-144), math.radians(-103)),  # 33
    Part.ArcOfCircle(Part.Circle(V(0, 0, 0), V(0, 0, 1), 4.9), math.radians(166.2), math.radians(173.8)),  # 34
    Part.ArcOfCircle(Part.Circle(V(-5.2, -1.99, 0), V(0, 0, 1), 2.54), math.radians(83), math.radians(124)),  # 35
    Part.LineSegment(V(-6.6, 0.13, 0), V(-6.6, -0.13, 0)),  # 36
    Part.ArcOfCircle(Part.Circle(V(-5.2, 1.99, 0), V(0, 0, 1), 2.54), math.radians(-124), math.radians(-83)),  # 37
    Part.ArcOfCircle(Part.Circle(V(0, 0, 0), V(0, 0, 1), 4.9), math.radians(-173.8), math.radians(-166.2)),  # 38
    Part.ArcOfCircle(Part.Circle(V(-4.21, -3.65, 0), V(0, 0, 1), 2.54), math.radians(103), math.radians(144)),  # 39
    Part.LineSegment(V(-6.25, -2.14, 0), V(-6.16, -2.38, 0)),  # 40
    Part.ArcOfCircle(Part.Circle(V(-5.57, 0.09, 0), V(0, 0, 1), 2.54), math.radians(-104), math.radians(-63)),  # 41
    Part.ArcOfCircle(Part.Circle(V(0, 0, 0), V(0, 0, 1), 4.9), math.radians(-153.8), math.radians(-146.2)),  # 42
    Part.ArcOfCircle(Part.Circle(V(-2.7, -4.87, 0), V(0, 0, 1), 2.54), math.radians(123), math.radians(164)),  # 43
    Part.LineSegment(V(-5.14, -4.15, 0), V(-4.98, -4.34, 0)),  # 44
    Part.ArcOfCircle(Part.Circle(V(-5.26, -1.82, 0), V(0, 0, 1), 2.54), math.radians(-84), math.radians(-43)),  # 45
    Part.ArcOfCircle(Part.Circle(V(0, 0, 0), V(0, 0, 1), 4.9), math.radians(-133.8), math.radians(-126.2)),  # 46
    Part.ArcOfCircle(Part.Circle(V(-0.88, -5.5, 0), V(0, 0, 1), 2.54), math.radians(143), math.radians(184)),  # 47
    Part.LineSegment(V(-3.41, -5.66, 0), V(-3.19, -5.78, 0)),  # 48
    Part.ArcOfCircle(Part.Circle(V(-4.32, -3.51, 0), V(0, 0, 1), 2.54), math.radians(-64), math.radians(-23)),  # 49
    Part.ArcOfCircle(Part.Circle(V(0, 0, 0), V(0, 0, 1), 4.9), math.radians(-113.8), math.radians(-106.2)),  # 50
    Part.ArcOfCircle(Part.Circle(V(1.06, -5.47, 0), V(0, 0, 1), 2.54), math.radians(163), math.radians(204)),  # 51
    Part.LineSegment(V(-1.27, -6.48, 0), V(-1.02, -6.53, 0)),  # 52
    Part.ArcOfCircle(Part.Circle(V(-2.86, -4.77, 0), V(0, 0, 1), 2.54), math.radians(-44), math.radians(-3)),  # 53
    Part.ArcOfCircle(Part.Circle(V(0, 0, 0), V(0, 0, 1), 4.9), math.radians(-93.8), math.radians(-86.2)),  # 54
    Part.ArcOfCircle(Part.Circle(V(2.86, -4.77, 0), V(0, 0, 1), 2.54), math.radians(-177), math.radians(-136)),  # 55
    Part.LineSegment(V(1.02, -6.53, 0), V(1.27, -6.48, 0)),  # 56
    Part.ArcOfCircle(Part.Circle(V(-1.06, -5.47, 0), V(0, 0, 1), 2.54), math.radians(-24), math.radians(17)),  # 57
    Part.ArcOfCircle(Part.Circle(V(0, 0, 0), V(0, 0, 1), 4.9), math.radians(-73.8), math.radians(-66.2)),  # 58
    Part.ArcOfCircle(Part.Circle(V(4.32, -3.51, 0), V(0, 0, 1), 2.54), math.radians(-157), math.radians(-116)),  # 59
    Part.LineSegment(V(3.19, -5.78, 0), V(3.41, -5.66, 0)),  # 60
    Part.ArcOfCircle(Part.Circle(V(0.88, -5.5, 0), V(0, 0, 1), 2.54), math.radians(-4), math.radians(37)),  # 61
    Part.ArcOfCircle(Part.Circle(V(0, 0, 0), V(0, 0, 1), 4.9), math.radians(-53.8), math.radians(-46.2)),  # 62
    Part.ArcOfCircle(Part.Circle(V(5.26, -1.82, 0), V(0, 0, 1), 2.54), math.radians(-137), math.radians(-96)),  # 63
    Part.LineSegment(V(4.98, -4.34, 0), V(5.14, -4.15, 0)),  # 64
    Part.ArcOfCircle(Part.Circle(V(2.7, -4.87, 0), V(0, 0, 1), 2.54), math.radians(16), math.radians(57)),  # 65
    Part.ArcOfCircle(Part.Circle(V(0, 0, 0), V(0, 0, 1), 4.9), math.radians(-33.8), math.radians(-26.2)),  # 66
    Part.ArcOfCircle(Part.Circle(V(5.57, 0.09, 0), V(0, 0, 1), 2.54), math.radians(-117), math.radians(-76)),  # 67
    Part.LineSegment(V(6.16, -2.38, 0), V(6.25, -2.14, 0)),  # 68
    Part.ArcOfCircle(Part.Circle(V(4.21, -3.65, 0), V(0, 0, 1), 2.54), math.radians(36), math.radians(77)),  # 69
    Part.ArcOfCircle(Part.Circle(V(0, 0, 0), V(0, 0, 1), 4.9), math.radians(-13.8), math.radians(-6.2)),  # 70
    Part.ArcOfCircle(Part.Circle(V(5.2, 1.99, 0), V(0, 0, 1), 2.54), math.radians(-97), math.radians(-56)),  # 71
], False)
sketch2.addConstraint([
    Sketcher.Constraint("Coincident", 0, 2, 1, 1),
    Sketcher.Constraint("Coincident", 1, 2, 2, 1),
    Sketcher.Constraint("Coincident", 2, 2, 3, 1),
    Sketcher.Constraint("Coincident", 3, 2, 4, 1),
    Sketcher.Constraint("Coincident", 4, 2, 5, 1),
    Sketcher.Constraint("Coincident", 5, 2, 6, 1),
    Sketcher.Constraint("Coincident", 6, 2, 7, 1),
    Sketcher.Constraint("Coincident", 7, 2, 8, 1),
    Sketcher.Constraint("Coincident", 8, 2, 9, 1),
    Sketcher.Constraint("Coincident", 9, 2, 10, 1),
    Sketcher.Constraint("Coincident", 10, 2, 11, 1),
    Sketcher.Constraint("Coincident", 11, 2, 12, 1),
    Sketcher.Constraint("Coincident", 12, 2, 13, 1),
    Sketcher.Constraint("Coincident", 13, 2, 14, 1),
    Sketcher.Constraint("Coincident", 14, 2, 15, 1),
    Sketcher.Constraint("Coincident", 15, 2, 16, 1),
    Sketcher.Constraint("Coincident", 16, 2, 17, 1),
    Sketcher.Constraint("Coincident", 17, 2, 18, 1),
    Sketcher.Constraint("Coincident", 18, 2, 19, 1),
    Sketcher.Constraint("Coincident", 19, 2, 20, 1),
    Sketcher.Constraint("Coincident", 20, 2, 21, 1),
    Sketcher.Constraint("Coincident", 21, 2, 22, 1),
    Sketcher.Constraint("Coincident", 22, 2, 23, 1),
    Sketcher.Constraint("Coincident", 23, 2, 24, 1),
    Sketcher.Constraint("Coincident", 24, 2, 25, 1),
    Sketcher.Constraint("Coincident", 25, 2, 26, 1),
    Sketcher.Constraint("Coincident", 26, 2, 27, 1),
    Sketcher.Constraint("Coincident", 27, 2, 28, 1),
    Sketcher.Constraint("Coincident", 28, 2, 29, 1),
    Sketcher.Constraint("Coincident", 29, 2, 30, 1),
    Sketcher.Constraint("Coincident", 30, 2, 31, 1),
    Sketcher.Constraint("Coincident", 31, 2, 32, 1),
    Sketcher.Constraint("Coincident", 32, 2, 33, 1),
    Sketcher.Constraint("Coincident", 33, 2, 34, 1),
    Sketcher.Constraint("Coincident", 34, 2, 35, 1),
    Sketcher.Constraint("Coincident", 35, 2, 36, 1),
    Sketcher.Constraint("Coincident", 36, 2, 37, 1),
    Sketcher.Constraint("Coincident", 37, 2, 38, 1),
    Sketcher.Constraint("Coincident", 38, 2, 39, 1),
    Sketcher.Constraint("Coincident", 39, 2, 40, 1),
    Sketcher.Constraint("Coincident", 40, 2, 41, 1),
    Sketcher.Constraint("Coincident", 41, 2, 42, 1),
    Sketcher.Constraint("Coincident", 42, 2, 43, 1),
    Sketcher.Constraint("Coincident", 43, 2, 44, 1),
    Sketcher.Constraint("Coincident", 44, 2, 45, 1),
    Sketcher.Constraint("Coincident", 45, 2, 46, 1),
    Sketcher.Constraint("Coincident", 46, 2, 47, 1),
    Sketcher.Constraint("Coincident", 47, 2, 48, 1),
    Sketcher.Constraint("Coincident", 48, 2, 49, 1),
    Sketcher.Constraint("Coincident", 49, 2, 50, 1),
    Sketcher.Constraint("Coincident", 50, 2, 51, 1),
    Sketcher.Constraint("Coincident", 51, 2, 52, 1),
    Sketcher.Constraint("Coincident", 52, 2, 53, 1),
    Sketcher.Constraint("Coincident", 53, 2, 54, 1),
    Sketcher.Constraint("Coincident", 54, 2, 55, 1),
    Sketcher.Constraint("Coincident", 55, 2, 56, 1),
    Sketcher.Constraint("Coincident", 56, 2, 57, 1),
    Sketcher.Constraint("Coincident", 57, 2, 58, 1),
    Sketcher.Constraint("Coincident", 58, 2, 59, 1),
    Sketcher.Constraint("Coincident", 59, 2, 60, 1),
    Sketcher.Constraint("Coincident", 60, 2, 61, 1),
    Sketcher.Constraint("Coincident", 61, 2, 62, 1),
    Sketcher.Constraint("Coincident", 62, 2, 63, 1),
    Sketcher.Constraint("Coincident", 63, 2, 64, 1),
    Sketcher.Constraint("Coincident", 64, 2, 65, 1),
    Sketcher.Constraint("Coincident", 65, 2, 66, 1),
    Sketcher.Constraint("Coincident", 66, 2, 67, 1),
    Sketcher.Constraint("Coincident", 67, 2, 68, 1),
    Sketcher.Constraint("Coincident", 68, 2, 69, 1),
    Sketcher.Constraint("Coincident", 69, 2, 70, 1),
    Sketcher.Constraint("Coincident", 70, 2, 71, 1),
    Sketcher.Constraint("Coincident", 71, 2, 0, 1),
    Sketcher.Constraint("Vertical", 0),
    Sketcher.Constraint("Vertical", 36),
    Sketcher.Constraint("Coincident", 2, 3, -1, 1),
    Sketcher.Constraint("Coincident", 6, 3, -1, 1),
    Sketcher.Constraint("Coincident", 10, 3, -1, 1),
    Sketcher.Constraint("Coincident", 14, 3, -1, 1),
    Sketcher.Constraint("Coincident", 18, 3, -1, 1),
    Sketcher.Constraint("Coincident", 22, 3, -1, 1),
    Sketcher.Constraint("Coincident", 26, 3, -1, 1),
    Sketcher.Constraint("Coincident", 30, 3, -1, 1),
    Sketcher.Constraint("Coincident", 34, 3, -1, 1),
    Sketcher.Constraint("Coincident", 38, 3, -1, 1),
    Sketcher.Constraint("Coincident", 42, 3, -1, 1),
    Sketcher.Constraint("Coincident", 46, 3, -1, 1),
    Sketcher.Constraint("Coincident", 50, 3, -1, 1),
    Sketcher.Constraint("Coincident", 54, 3, -1, 1),
    Sketcher.Constraint("Coincident", 58, 3, -1, 1),
    Sketcher.Constraint("Coincident", 62, 3, -1, 1),
    Sketcher.Constraint("Coincident", 66, 3, -1, 1),
    Sketcher.Constraint("Coincident", 70, 3, -1, 1),
    Sketcher.Constraint("Equal", 1, 3),
    Sketcher.Constraint("Equal", 3, 5),
    Sketcher.Constraint("Equal", 2, 6),
    Sketcher.Constraint("Equal", 5, 7),
    Sketcher.Constraint("Equal", 7, 9),
    Sketcher.Constraint("Equal", 6, 10),
    Sketcher.Constraint("Equal", 9, 11),
    Sketcher.Constraint("Equal", 11, 13),
    Sketcher.Constraint("Equal", 10, 14),
    Sketcher.Constraint("Equal", 13, 15),
    Sketcher.Constraint("Equal", 15, 17),
    Sketcher.Constraint("Equal", 14, 18),
    Sketcher.Constraint("Equal", 17, 19),
    Sketcher.Constraint("Equal", 19, 21),
    Sketcher.Constraint("Equal", 18, 22),
    Sketcher.Constraint("Equal", 21, 23),
    Sketcher.Constraint("Equal", 23, 25),
    Sketcher.Constraint("Equal", 22, 26),
    Sketcher.Constraint("Equal", 25, 27),
    Sketcher.Constraint("Equal", 27, 29),
    Sketcher.Constraint("Equal", 26, 30),
    Sketcher.Constraint("Equal", 29, 31),
    Sketcher.Constraint("Equal", 31, 33),
    Sketcher.Constraint("Equal", 30, 34),
    Sketcher.Constraint("Equal", 33, 35),
    Sketcher.Constraint("Equal", 35, 37),
    Sketcher.Constraint("Equal", 34, 38),
    Sketcher.Constraint("Equal", 37, 39),
    Sketcher.Constraint("Equal", 39, 41),
    Sketcher.Constraint("Equal", 38, 42),
    Sketcher.Constraint("Equal", 41, 43),
    Sketcher.Constraint("Equal", 43, 45),
    Sketcher.Constraint("Equal", 42, 46),
    Sketcher.Constraint("Equal", 45, 47),
    Sketcher.Constraint("Equal", 47, 49),
    Sketcher.Constraint("Equal", 46, 50),
    Sketcher.Constraint("Equal", 49, 51),
    Sketcher.Constraint("Equal", 51, 53),
    Sketcher.Constraint("Equal", 50, 54),
    Sketcher.Constraint("Equal", 53, 55),
    Sketcher.Constraint("Equal", 55, 57),
    Sketcher.Constraint("Equal", 54, 58),
    Sketcher.Constraint("Equal", 57, 59),
    Sketcher.Constraint("Equal", 59, 61),
    Sketcher.Constraint("Equal", 58, 62),
    Sketcher.Constraint("Equal", 61, 63),
    Sketcher.Constraint("Equal", 63, 65),
    Sketcher.Constraint("Equal", 62, 66),
    Sketcher.Constraint("Equal", 65, 67),
    Sketcher.Constraint("Equal", 67, 69),
    Sketcher.Constraint("Equal", 66, 70),
    Sketcher.Constraint("Equal", 69, 71),
    Sketcher.Constraint("Symmetric", 1, 3, 37, 3, -1, 1),
    Sketcher.Constraint("Symmetric", 3, 3, 39, 3, -1, 1),
    Sketcher.Constraint("Symmetric", 5, 3, 41, 3, -1, 1),
    Sketcher.Constraint("Symmetric", 7, 3, 43, 3, -1, 1),
    Sketcher.Constraint("Symmetric", 9, 3, 45, 3, -1, 1),
    Sketcher.Constraint("Symmetric", 11, 3, 47, 3, -1, 1),
    Sketcher.Constraint("Symmetric", 13, 3, 49, 3, -1, 1),
    Sketcher.Constraint("Symmetric", 15, 3, 51, 3, -1, 1),
    Sketcher.Constraint("Symmetric", 17, 3, 53, 3, -1, 1),
    Sketcher.Constraint("Symmetric", 19, 3, 55, 3, -1, 1),
    Sketcher.Constraint("Symmetric", 21, 3, 57, 3, -1, 1),
    Sketcher.Constraint("Symmetric", 23, 3, 59, 3, -1, 1),
    Sketcher.Constraint("Symmetric", 25, 3, 61, 3, -1, 1),
    Sketcher.Constraint("Symmetric", 27, 3, 63, 3, -1, 1),
    Sketcher.Constraint("Symmetric", 29, 3, 65, 3, -1, 1),
    Sketcher.Constraint("Symmetric", 31, 3, 67, 3, -1, 1),
    Sketcher.Constraint("Symmetric", 33, 3, 69, 3, -1, 1),
    Sketcher.Constraint("Symmetric", 35, 3, 71, 3, -1, 1),
    Sketcher.Constraint("Symmetric", 17, 3, 19, 3, -2),
    Sketcher.Constraint("Symmetric", 15, 3, 21, 3, -2),
    Sketcher.Constraint("Symmetric", 13, 3, 23, 3, -2),
    Sketcher.Constraint("Symmetric", 11, 3, 25, 3, -2),
    Sketcher.Constraint("Symmetric", 9, 3, 27, 3, -2),
    Sketcher.Constraint("Symmetric", 7, 3, 29, 3, -2),
    Sketcher.Constraint("Symmetric", 5, 3, 31, 3, -2),
    Sketcher.Constraint("Symmetric", 3, 3, 33, 3, -2),
    Sketcher.Constraint("Symmetric", 1, 3, 35, 3, -2),
    Sketcher.Constraint("Parallel", 4, 40),
    Sketcher.Constraint("Parallel", 8, 44),
    Sketcher.Constraint("Parallel", 12, 48),
    Sketcher.Constraint("Parallel", 16, 52),
    Sketcher.Constraint("Parallel", 20, 56),
    Sketcher.Constraint("Parallel", 24, 60),
    Sketcher.Constraint("Parallel", 28, 64),
    Sketcher.Constraint("Parallel", 32, 68),
    Sketcher.Constraint("Horizontal", 16, 2, 19, 2),
    Sketcher.Constraint("Horizontal", 15, 2, 20, 2),
    Sketcher.Constraint("Horizontal", 12, 2, 23, 2),
    Sketcher.Constraint("Horizontal", 11, 2, 24, 2),
    Sketcher.Constraint("Horizontal", 8, 2, 27, 2),
    Sketcher.Constraint("Horizontal", 7, 2, 28, 2),
    Sketcher.Constraint("Horizontal", 4, 2, 31, 2),
    Sketcher.Constraint("Horizontal", 3, 2, 32, 2),
    Sketcher.Constraint("Horizontal", 0, 2, 35, 2),
    Sketcher.Constraint("Horizontal", 52, 2, 55, 2),
    Sketcher.Constraint("Horizontal", 48, 2, 59, 2),
    Sketcher.Constraint("Horizontal", 44, 2, 63, 2),
    Sketcher.Constraint("Horizontal", 40, 2, 67, 2),
    Sketcher.Constraint("Vertical", 32, 2, 39, 2),
    Sketcher.Constraint("Vertical", 28, 2, 43, 2),
    Sketcher.Constraint("Vertical", 24, 2, 47, 2),
    Sketcher.Constraint("Vertical", 20, 2, 51, 2),
    Sketcher.Constraint("Equal", 4, 8),
    Sketcher.Constraint("Equal", 8, 12),
    Sketcher.Constraint("Equal", 12, 16),
    Sketcher.Constraint("Radius", 1, Q("0.1 in")),
    Sketcher.Constraint("Angle", 4, Q("110 deg")),
    Sketcher.Constraint("Angle", 8, Q("130 deg")),
    Sketcher.Constraint("Angle", 12, Q("150 deg")),
    Sketcher.Constraint("Angle", 16, Q("170 deg")),
    Sketcher.Constraint("Radius", 2, Q("0.193 in")),
    Sketcher.Constraint("DistanceY", 0, 1, 0, 2, Q("0.01 in")),
    Sketcher.Constraint("Distance", 4, Q("0.01 in")),
    Sketcher.Constraint("DistanceX", -1, 1, 0, 2, Q("0.26 in")),
    Sketcher.Constraint("DistanceY", 5, 3, -1, 1, 0.090999),
    Sketcher.Constraint("DistanceY", -1, 1, 2, 2, 1.168998),
    Sketcher.Constraint("DistanceX", -1, 1, 16, 2, 1.021702),
    Sketcher.Constraint("DistanceX", -1, 1, 1, 3, 5.199308),
    Sketcher.Constraint("DistanceX", -1, 1, 5, 3, 5.566109),
    Sketcher.Constraint("DistanceY", -1, 1, 7, 3, 4.865892),
    Sketcher.Constraint("DistanceY", -1, 1, 9, 3, 1.81821),
    Sketcher.Constraint("DistanceX", -1, 1, 11, 3, 0.876928),
    Sketcher.Constraint("DistanceY", -1, 1, 11, 3, 5.49735),
    Sketcher.Constraint("DistanceX", -1, 1, 13, 3, 4.32238),
    Sketcher.Constraint("DistanceX", 15, 3, -1, 1, 1.056162),
    Sketcher.Constraint("DistanceY", -1, 1, 3, 2, 2.13936),
    Sketcher.Constraint("DistanceY", -1, 1, 6, 2, 2.726781),
    Sketcher.Constraint("DistanceX", -1, 1, 7, 2, 5.140592),
    Sketcher.Constraint("DistanceY", -1, 1, 11, 2, 5.655732),
    Sketcher.Constraint("DistanceY", -1, 1, 15, 3, 5.465746),
    Sketcher.Constraint("DistanceX", -1, 1, 17, 3, 2.861862),
])
pad2 = body.newObject("PartDesign::Pad", "Pad001")
pad2.Profile = sketch2
pad2.Length = Q("0.5 in")
pad2.Reversed = True

# Sketch on XY plane
sketch3 = body.newObject("Sketcher::SketchObject", "Sketch002")
sketch3.AttachmentSupport = (doc.getObject("XY_Plane"), [""])
sketch3.MapMode = "FlatFace"
sketch3.AttachmentOffset = App.Placement(V(0, 0, -0.1 * 25.4), App.Rotation())
sketch3.addGeometry(Part.Circle(V(0, 0, 0), V(0, 0, 1), 4.7), False)
sketch3.addConstraint([
    Sketcher.Constraint("Coincident", 0, 3, -1, 1),
    Sketcher.Constraint("Diameter", 0, Q("0.37 in")),
])
pocket1 = body.newObject("PartDesign::Pocket", "Pocket")
pocket1.Profile = sketch3
pocket1.Length = Q("0.4 in")

doc.recompute()
